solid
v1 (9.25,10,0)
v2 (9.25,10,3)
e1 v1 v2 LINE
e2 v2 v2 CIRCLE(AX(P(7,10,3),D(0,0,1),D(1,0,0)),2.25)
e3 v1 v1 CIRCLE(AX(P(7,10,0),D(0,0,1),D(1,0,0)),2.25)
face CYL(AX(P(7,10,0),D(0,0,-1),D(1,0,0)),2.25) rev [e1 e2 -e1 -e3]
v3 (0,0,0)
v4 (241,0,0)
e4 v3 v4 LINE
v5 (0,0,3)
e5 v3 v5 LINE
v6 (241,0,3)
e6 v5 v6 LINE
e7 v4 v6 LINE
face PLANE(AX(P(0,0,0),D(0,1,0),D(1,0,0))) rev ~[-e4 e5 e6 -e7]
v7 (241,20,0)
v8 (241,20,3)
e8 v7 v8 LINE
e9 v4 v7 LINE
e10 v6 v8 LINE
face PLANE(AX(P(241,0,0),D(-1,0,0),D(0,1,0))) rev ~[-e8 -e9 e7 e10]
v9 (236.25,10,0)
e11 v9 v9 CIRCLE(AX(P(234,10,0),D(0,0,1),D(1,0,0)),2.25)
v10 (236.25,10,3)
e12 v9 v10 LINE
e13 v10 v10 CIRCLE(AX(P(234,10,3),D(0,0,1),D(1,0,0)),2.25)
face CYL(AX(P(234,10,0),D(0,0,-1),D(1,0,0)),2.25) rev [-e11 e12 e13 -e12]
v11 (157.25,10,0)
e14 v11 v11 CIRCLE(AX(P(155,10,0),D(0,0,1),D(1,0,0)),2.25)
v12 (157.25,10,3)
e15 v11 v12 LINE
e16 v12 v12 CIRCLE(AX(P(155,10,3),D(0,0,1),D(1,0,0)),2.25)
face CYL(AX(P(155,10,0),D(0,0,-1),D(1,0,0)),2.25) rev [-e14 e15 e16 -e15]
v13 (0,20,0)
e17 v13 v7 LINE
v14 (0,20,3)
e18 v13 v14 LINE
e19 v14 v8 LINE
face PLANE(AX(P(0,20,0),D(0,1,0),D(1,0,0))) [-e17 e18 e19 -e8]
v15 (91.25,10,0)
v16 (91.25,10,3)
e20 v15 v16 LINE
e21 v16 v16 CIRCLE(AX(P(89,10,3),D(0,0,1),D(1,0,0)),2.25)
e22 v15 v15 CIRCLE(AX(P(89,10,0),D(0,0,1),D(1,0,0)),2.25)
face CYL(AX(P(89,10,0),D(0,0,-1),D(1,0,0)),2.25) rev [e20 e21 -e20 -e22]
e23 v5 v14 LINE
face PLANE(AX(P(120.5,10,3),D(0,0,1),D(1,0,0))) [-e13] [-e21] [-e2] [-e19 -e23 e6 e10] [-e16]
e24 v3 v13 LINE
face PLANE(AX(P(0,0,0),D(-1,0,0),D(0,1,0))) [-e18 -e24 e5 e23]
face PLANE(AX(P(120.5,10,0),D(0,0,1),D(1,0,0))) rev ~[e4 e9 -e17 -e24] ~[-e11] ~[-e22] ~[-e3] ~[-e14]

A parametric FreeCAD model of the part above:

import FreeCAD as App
import Part
import Sketcher

V = App.Vector

doc = App.newDocument("Part")
body = doc.addObject("PartDesign::Body", "Body")

# Sketch on XY plane
sketch1 = body.newObject("Sketcher::SketchObject", "Sketch")
sketch1.AttachmentSupport = (doc.getObject("XY_Plane"), [""])
sketch1.MapMode = "FlatFace"
sketch1.addGeometry([
    Part.LineSegment(V(0, 20, 0), V(0, 0, 0)),
    Part.LineSegment(V(0, 0, 0), V(241, 0, 0)),
    Part.LineSegment(V(241, 0, 0), V(241, 20, 0)),
    Part.LineSegment(V(241, 20, 0), V(0, 20, 0)),
], False)
sketch1.addConstraint([
    Sketcher.Constraint("Coincident", 0, 2, 1, 1),
    Sketcher.Constraint("Coincident", 1, 2, 2, 1),
    Sketcher.Constraint("Coincident", 2, 2, 3, 1),
    Sketcher.Constraint("Coincident", 3, 2, 0, 1),
    Sketcher.Constraint("Vertical", 0),
    Sketcher.Constraint("Horizontal", 1),
    Sketcher.Constraint("Vertical", 2),
    Sketcher.Constraint("Horizontal", 3),
    Sketcher.Constraint("Coincident", 0, 2, -1, 1),
    Sketcher.Constraint("DistanceX", 1, 1, 1, 2, 241.0),
    Sketcher.Constraint("DistanceY", 0, 2, 0, 1, 20.0),
])
pad1 = body.newObject("PartDesign::Pad", "Pad")
pad1.Profile = sketch1
pad1.Length = 3

# Sketch on XY plane
sketch2 = body.newObject("Sketcher::SketchObject", "Sketch001")
sketch2.AttachmentSupport = (doc.getObject("XY_Plane"), [""])
sketch2.MapMode = "FlatFace"
sketch2.addGeometry(Part.Circle(V(7, 10, 0), V(0, 0, 1), 2.2), False)
sketch2.addConstraint([
    Sketcher.Constraint("Diameter", 0, 4.5),
    Sketcher.Constraint("DistanceX", -1, 1, 0, 3, 7.0),
    Sketcher.Constraint("DistanceY", -1, 1, 0, 3, 10.0),
])
pocket1 = body.newObject("PartDesign::Pocket", "Pocket")
pocket1.Profile = sketch2
pocket1.Length = 3
pocket1.Reversed = True

# Sketch on XY plane
sketch3 = body.newObject("Sketcher::SketchObject", "Sketch002")
sketch3.AttachmentSupport = (doc.getObject("XY_Plane"), [""])
sketch3.MapMode = "FlatFace"
sketch3.addGeometry(Part.Circle(V(234, 10, 0), V(0, 0, 1), 2.2), False)
sketch3.addConstraint([
    Sketcher.Constraint("Diameter", 0, 4.5),
    Sketcher.Constraint("DistanceX", -1, 1, 0, 3, 234.0),
    Sketcher.Constraint("DistanceY", -1, 1, 0, 3, 10.0),
])
pocket2 = body.newObject("PartDesign::Pocket", "Pocket001")
pocket2.Profile = sketch3
pocket2.Length = 3
pocket2.Reversed = True

# Sketch on XY plane
sketch4 = body.newObject("Sketcher::SketchObject", "Sketch003")
sketch4.AttachmentSupport = (doc.getObject("XY_Plane"), [""])
sketch4.MapMode = "FlatFace"
sketch4.addGeometry(Part.Circle(V(89, 10, 0), V(0, 0, 1), 2.2), False)
sketch4.addConstraint([
    Sketcher.Constraint("Diameter", 0, 4.5),
    Sketcher.Constraint("DistanceX", -1, 1, 0, 3, 89.0),
    Sketcher.Constraint("DistanceY", -1, 1, 0, 3, 10.0),
])
pocket3 = body.newObject("PartDesign::Pocket", "Pocket002")
pocket3.Profile = sketch4
pocket3.Length = 3
pocket3.Reversed = True

# Sketch on XY plane
sketch5 = body.newObject("Sketcher::SketchObject", "Sketch004")
sketch5.AttachmentSupport = (doc.getObject("XY_Plane"), [""])
sketch5.MapMode = "FlatFace"
sketch5.addGeometry(Part.Circle(V(155, 10, 0), V(0, 0, 1), 2.2), False)
sketch5.addConstraint([
    Sketcher.Constraint("Diameter", 0, 4.5),
    Sketcher.Constraint("DistanceX", -1, 1, 0, 3, 155.0),
    Sketcher.Constraint("DistanceY", -1, 1, 0, 3, 10.0),
])
pocket4 = body.newObject("PartDesign::Pocket", "Pocket003")
pocket4.Profile = sketch5
pocket4.Length = 3
pocket4.Reversed = True

doc.recompute()
